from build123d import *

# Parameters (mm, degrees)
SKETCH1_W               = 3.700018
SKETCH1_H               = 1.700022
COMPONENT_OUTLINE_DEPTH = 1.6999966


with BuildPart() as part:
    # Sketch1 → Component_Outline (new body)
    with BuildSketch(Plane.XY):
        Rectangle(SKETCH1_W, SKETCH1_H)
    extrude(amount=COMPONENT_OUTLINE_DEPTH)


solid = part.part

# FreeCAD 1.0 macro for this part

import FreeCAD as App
import Part
import Sketcher

V = App.Vector
Q = App.Units.Quantity

doc = App.newDocument("Part")
body = doc.addObject("PartDesign::Body", "Body")

# Sketch on XY plane
sketch1 = body.newObject("Sketcher::SketchObject", "Sketch")
sketch1.AttachmentSupport = (doc.getObject("XY_Plane"), [""])
sketch1.MapMode = "FlatFace"
sketch1.addGeometry(Part.LineSegment(V(-1.9, 0.9, 0), V(-1.9, -0.9, 0)), False)
sketch1.addGeometry(Part.LineSegment(V(-1.9, -0.9, 0), V(1.9, -0.9, 0)), False)
sketch1.addGeometry(Part.LineSegment(V(1.9, -0.9, 0), V(1.9, 0.9, 0)), False)
sketch1.addGeometry(Part.LineSegment(V(1.9, 0.9, 0), V(-1.9, 0.9, 0)), False)
sketch1.addConstraint(Sketcher.Constraint("Coincident", 0, 2, 1, 1))
sketch1.addConstraint(Sketcher.Constraint("Coincident", 1, 2, 2, 1))
sketch1.addConstraint(Sketcher.Constraint("Coincident", 2, 2, 3, 1))
sketch1.addConstraint(Sketcher.Constraint("Coincident", 3, 2, 0, 1))
sketch1.addConstraint(Sketcher.Constraint("Vertical", 0))
sketch1.addConstraint(Sketcher.Constraint("Horizontal", 1))
sketch1.addConstraint(Sketcher.Constraint("Vertical", 2))
sketch1.addConstraint(Sketcher.Constraint("Horizontal", 3))
sketch1.addConstraint(Sketcher.Constraint("Symmetric", 0, 2, 2, 2, -1, 1))
sketch1.addConstraint(Sketcher.Constraint("DistanceX", 1, 1, 1, 2, Q("3.700018 mm")))
sketch1.addConstraint(Sketcher.Constraint("DistanceY", 0, 2, 0, 1, Q("1.700022 mm")))
pad1 = body.newObject("PartDesign::Pad", "Pad")
pad1.Profile = sketch1
pad1.Length = 1.699997

doc.recompute()
